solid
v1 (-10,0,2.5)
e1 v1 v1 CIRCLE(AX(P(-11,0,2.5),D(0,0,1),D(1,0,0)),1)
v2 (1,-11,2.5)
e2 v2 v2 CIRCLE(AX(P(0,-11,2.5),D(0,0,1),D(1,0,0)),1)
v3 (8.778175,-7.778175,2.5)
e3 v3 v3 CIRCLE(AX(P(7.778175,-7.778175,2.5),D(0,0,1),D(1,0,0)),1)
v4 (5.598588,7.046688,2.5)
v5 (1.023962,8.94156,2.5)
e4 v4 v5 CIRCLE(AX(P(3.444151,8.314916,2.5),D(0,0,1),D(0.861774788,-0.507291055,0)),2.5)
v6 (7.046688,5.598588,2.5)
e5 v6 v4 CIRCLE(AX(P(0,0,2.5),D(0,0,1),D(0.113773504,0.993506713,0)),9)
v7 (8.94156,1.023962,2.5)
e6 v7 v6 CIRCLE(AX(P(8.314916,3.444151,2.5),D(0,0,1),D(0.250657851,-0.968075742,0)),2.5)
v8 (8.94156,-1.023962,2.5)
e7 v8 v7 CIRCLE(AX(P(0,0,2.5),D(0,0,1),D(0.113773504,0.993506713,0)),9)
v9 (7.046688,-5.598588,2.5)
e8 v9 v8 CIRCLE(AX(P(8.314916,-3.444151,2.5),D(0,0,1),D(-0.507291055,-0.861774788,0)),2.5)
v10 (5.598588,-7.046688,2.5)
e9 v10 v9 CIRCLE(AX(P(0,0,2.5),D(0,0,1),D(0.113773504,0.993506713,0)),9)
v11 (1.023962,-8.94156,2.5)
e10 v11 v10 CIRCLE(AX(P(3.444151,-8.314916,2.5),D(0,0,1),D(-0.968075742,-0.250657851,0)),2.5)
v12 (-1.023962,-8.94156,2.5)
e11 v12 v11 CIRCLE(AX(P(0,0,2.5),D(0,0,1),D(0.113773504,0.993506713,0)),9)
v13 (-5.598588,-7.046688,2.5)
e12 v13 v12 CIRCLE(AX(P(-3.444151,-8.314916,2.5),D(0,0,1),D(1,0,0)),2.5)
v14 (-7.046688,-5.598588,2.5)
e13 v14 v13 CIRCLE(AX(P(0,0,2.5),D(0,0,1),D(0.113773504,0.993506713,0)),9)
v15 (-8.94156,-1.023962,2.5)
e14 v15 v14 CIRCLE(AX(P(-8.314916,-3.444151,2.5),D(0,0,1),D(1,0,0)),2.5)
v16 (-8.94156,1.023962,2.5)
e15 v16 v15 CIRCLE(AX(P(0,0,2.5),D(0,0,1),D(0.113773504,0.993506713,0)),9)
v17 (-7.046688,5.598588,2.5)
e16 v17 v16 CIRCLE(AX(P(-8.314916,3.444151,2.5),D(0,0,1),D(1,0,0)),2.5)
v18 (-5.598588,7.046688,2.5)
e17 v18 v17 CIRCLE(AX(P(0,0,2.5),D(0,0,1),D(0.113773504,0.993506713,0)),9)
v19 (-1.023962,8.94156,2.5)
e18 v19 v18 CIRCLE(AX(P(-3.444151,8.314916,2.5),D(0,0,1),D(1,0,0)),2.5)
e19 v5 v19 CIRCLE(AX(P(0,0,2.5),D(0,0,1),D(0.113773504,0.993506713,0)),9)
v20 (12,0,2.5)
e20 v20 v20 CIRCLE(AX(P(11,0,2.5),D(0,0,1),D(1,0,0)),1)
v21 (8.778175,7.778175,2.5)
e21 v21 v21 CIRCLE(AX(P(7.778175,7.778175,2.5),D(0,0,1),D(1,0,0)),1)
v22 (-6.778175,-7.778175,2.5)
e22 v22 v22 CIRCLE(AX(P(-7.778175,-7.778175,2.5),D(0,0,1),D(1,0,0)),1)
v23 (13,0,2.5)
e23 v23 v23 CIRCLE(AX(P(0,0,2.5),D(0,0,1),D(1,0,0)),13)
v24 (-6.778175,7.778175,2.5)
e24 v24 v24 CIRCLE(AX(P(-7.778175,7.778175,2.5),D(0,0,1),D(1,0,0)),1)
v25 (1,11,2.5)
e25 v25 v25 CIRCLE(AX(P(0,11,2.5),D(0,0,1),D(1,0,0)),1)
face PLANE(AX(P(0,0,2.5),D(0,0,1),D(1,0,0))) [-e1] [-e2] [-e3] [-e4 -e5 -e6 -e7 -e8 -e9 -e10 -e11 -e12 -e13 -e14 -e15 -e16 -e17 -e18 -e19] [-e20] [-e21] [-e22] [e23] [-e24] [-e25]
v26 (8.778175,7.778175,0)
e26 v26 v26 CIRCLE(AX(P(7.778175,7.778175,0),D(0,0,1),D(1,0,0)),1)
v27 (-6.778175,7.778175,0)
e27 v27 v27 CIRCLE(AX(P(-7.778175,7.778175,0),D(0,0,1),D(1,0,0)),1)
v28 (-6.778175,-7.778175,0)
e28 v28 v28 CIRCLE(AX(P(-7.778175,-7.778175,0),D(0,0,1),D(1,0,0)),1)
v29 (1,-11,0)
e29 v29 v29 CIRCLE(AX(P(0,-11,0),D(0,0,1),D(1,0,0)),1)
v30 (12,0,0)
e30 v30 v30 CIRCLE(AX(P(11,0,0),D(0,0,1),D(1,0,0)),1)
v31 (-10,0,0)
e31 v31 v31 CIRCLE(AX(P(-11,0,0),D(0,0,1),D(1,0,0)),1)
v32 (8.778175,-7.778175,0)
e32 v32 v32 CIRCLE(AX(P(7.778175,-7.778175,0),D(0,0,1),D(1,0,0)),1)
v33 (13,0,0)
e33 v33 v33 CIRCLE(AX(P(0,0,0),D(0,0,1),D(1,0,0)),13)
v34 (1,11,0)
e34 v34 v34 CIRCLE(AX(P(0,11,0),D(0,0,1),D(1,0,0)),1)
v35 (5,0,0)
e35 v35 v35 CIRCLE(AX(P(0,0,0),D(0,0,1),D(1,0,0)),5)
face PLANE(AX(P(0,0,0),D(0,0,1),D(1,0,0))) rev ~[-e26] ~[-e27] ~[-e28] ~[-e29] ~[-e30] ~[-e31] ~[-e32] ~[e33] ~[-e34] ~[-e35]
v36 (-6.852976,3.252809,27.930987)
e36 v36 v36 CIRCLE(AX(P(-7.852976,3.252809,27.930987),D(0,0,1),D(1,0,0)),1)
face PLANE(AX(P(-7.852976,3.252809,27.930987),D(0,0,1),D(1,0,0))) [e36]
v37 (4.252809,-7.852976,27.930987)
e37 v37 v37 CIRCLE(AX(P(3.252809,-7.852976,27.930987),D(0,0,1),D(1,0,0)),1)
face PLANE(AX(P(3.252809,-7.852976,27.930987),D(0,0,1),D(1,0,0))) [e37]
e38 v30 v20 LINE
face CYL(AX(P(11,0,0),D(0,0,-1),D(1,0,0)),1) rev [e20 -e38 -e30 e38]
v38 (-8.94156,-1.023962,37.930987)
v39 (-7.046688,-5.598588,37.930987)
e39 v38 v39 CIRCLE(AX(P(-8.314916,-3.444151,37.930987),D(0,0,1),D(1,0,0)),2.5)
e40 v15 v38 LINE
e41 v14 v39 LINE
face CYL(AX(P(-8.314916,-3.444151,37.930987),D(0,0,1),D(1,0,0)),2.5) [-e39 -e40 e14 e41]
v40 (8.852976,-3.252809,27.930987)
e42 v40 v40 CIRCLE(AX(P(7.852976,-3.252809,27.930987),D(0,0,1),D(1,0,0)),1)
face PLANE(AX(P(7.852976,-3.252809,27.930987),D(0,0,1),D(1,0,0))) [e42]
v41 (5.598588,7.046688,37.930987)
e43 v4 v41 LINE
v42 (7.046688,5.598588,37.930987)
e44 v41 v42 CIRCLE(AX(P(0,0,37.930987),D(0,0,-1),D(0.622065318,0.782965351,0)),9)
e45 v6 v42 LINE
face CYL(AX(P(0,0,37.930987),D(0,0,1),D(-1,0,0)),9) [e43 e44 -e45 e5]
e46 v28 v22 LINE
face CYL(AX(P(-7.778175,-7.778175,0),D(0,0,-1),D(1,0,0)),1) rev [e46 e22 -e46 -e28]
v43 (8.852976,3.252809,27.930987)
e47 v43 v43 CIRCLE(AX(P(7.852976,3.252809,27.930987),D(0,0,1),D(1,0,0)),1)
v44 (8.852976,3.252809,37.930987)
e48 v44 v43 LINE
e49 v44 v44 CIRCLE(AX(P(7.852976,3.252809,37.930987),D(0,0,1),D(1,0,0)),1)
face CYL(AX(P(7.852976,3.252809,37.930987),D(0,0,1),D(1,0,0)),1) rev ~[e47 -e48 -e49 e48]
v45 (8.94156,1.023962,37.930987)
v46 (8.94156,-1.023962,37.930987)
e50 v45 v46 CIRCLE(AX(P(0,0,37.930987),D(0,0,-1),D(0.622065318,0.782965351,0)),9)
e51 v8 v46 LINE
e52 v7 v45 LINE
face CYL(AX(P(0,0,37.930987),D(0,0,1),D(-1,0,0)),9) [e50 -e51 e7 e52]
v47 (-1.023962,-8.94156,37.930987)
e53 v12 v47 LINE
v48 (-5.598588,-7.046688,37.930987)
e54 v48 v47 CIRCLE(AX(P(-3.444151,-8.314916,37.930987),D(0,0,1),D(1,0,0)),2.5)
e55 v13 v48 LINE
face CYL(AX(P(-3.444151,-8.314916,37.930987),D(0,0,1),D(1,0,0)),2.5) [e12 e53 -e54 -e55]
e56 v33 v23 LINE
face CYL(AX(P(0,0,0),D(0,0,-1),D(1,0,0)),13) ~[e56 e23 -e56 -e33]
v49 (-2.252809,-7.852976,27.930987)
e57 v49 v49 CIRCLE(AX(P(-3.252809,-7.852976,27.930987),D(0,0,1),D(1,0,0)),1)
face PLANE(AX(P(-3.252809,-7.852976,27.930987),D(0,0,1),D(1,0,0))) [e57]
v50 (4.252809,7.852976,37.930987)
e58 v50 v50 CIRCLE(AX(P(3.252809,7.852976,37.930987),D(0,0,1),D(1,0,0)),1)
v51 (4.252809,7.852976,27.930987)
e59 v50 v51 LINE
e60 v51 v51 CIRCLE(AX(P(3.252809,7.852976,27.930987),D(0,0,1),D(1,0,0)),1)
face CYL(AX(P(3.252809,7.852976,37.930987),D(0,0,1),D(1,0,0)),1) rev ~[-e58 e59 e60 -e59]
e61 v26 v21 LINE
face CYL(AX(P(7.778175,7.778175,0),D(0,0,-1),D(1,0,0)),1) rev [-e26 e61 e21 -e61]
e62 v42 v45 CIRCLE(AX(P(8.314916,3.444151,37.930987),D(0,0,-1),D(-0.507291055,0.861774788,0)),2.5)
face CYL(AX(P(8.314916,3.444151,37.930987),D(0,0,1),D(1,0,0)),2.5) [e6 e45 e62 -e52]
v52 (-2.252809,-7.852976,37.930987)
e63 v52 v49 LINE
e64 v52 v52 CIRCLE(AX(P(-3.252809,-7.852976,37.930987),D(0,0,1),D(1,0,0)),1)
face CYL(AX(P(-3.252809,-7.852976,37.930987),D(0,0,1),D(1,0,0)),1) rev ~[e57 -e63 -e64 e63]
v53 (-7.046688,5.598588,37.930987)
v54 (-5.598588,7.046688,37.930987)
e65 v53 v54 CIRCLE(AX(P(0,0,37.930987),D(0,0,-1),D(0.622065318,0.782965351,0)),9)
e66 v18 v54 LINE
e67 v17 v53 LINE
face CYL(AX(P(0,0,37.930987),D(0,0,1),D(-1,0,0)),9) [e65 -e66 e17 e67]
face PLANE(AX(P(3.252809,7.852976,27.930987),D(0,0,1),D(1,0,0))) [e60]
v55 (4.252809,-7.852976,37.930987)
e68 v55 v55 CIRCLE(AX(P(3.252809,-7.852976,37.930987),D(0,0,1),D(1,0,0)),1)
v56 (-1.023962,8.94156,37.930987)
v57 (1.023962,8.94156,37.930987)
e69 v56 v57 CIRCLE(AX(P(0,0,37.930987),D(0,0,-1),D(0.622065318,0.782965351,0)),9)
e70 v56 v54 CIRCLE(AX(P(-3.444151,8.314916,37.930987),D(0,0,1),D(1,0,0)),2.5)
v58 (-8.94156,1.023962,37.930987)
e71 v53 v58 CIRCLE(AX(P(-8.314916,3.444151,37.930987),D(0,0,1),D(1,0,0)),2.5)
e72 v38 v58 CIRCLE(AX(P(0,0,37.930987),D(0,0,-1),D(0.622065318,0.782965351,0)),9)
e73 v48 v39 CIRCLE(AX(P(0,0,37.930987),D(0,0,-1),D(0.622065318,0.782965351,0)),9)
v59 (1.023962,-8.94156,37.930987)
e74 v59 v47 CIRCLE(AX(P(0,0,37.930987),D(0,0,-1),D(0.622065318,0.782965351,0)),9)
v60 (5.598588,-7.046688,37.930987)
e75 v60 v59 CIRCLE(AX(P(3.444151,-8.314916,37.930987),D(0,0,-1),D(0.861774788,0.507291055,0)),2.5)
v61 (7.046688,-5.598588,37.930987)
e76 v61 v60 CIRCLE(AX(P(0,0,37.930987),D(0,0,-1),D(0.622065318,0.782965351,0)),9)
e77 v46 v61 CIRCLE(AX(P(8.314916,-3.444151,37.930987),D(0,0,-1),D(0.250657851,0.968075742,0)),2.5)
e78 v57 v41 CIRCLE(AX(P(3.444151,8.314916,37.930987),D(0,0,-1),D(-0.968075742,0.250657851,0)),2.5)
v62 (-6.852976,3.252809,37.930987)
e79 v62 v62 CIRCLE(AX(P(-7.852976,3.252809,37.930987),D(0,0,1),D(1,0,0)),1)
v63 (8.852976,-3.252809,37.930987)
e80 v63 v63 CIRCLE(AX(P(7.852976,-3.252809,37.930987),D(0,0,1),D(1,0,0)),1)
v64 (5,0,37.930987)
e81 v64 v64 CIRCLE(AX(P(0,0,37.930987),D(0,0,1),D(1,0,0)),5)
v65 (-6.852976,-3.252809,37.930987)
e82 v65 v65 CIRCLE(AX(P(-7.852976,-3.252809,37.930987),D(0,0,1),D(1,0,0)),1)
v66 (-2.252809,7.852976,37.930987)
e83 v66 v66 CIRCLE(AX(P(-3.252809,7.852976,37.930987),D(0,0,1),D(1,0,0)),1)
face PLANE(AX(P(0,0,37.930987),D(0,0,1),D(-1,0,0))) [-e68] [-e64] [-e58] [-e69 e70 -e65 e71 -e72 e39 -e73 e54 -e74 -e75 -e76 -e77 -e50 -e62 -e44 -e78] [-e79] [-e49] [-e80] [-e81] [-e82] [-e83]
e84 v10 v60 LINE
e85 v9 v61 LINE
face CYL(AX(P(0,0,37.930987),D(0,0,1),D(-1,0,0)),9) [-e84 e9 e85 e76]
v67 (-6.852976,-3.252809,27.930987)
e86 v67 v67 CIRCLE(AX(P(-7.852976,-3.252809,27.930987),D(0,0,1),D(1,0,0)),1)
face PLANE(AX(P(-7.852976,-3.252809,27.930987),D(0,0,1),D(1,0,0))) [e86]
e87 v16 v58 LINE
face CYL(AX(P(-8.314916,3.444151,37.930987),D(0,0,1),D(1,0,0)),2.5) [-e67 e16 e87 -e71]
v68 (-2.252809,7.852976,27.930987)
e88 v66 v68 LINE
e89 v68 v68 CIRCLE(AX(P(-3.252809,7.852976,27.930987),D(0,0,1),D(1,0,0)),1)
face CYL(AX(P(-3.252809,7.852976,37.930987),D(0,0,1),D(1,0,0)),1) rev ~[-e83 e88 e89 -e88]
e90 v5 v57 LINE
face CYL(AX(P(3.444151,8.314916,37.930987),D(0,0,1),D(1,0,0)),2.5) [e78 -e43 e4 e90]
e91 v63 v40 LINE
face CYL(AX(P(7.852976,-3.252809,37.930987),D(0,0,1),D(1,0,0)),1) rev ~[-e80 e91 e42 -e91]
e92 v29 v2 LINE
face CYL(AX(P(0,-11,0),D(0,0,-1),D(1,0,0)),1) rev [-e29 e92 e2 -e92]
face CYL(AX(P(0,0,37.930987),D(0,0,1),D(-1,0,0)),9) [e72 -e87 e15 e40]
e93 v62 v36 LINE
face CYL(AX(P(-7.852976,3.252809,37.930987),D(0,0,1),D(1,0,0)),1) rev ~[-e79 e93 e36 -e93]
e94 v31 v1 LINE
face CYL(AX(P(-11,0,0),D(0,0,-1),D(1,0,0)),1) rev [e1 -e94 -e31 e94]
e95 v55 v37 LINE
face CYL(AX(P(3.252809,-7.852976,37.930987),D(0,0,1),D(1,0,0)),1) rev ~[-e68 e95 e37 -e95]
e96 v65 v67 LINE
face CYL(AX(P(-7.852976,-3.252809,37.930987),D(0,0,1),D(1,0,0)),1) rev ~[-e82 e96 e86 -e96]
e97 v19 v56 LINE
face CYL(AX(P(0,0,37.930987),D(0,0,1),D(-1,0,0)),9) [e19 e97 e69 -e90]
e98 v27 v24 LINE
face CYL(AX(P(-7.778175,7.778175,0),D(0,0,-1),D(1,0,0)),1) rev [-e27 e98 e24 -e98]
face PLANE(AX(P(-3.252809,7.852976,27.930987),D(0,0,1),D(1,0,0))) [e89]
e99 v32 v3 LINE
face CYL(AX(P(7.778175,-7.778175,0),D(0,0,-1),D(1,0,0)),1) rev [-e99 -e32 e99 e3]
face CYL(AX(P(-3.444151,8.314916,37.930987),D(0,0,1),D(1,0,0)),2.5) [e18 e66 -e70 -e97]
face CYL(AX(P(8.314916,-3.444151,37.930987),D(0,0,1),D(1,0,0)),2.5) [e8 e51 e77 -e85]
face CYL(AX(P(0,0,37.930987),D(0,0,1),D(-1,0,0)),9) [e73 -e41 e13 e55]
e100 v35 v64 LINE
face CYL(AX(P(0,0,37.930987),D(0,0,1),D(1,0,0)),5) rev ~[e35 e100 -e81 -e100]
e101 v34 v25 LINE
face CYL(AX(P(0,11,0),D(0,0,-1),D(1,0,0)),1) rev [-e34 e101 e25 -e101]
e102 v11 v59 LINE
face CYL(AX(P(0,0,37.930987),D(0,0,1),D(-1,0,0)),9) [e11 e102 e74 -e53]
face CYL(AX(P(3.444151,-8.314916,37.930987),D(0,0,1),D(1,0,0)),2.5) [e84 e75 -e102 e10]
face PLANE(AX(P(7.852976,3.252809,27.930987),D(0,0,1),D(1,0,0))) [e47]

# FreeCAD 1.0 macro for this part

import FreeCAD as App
import Part
import Sketcher

V = App.Vector

doc = App.newDocument("Part")
body = doc.addObject("PartDesign::Body", "Body")

sketch1 = body.newObject("Sketcher::SketchObject", "Sketch")
sketch1.AttachmentSupport = (doc.getObject("XY_Plane"), [""])
sketch1.MapMode = "FlatFace"
sketch1.addGeometry([
    Part.Circle(V(0, 0, 0), V(0, 0, 1), 13),
    Part.Circle(V(-7.8, -7.8, 0), V(0, 0, 1), 1),
    Part.Circle(V(0, -11, 0), V(0, 0, 1), 1),
    Part.Circle(V(7.8, -7.8, 0), V(0, 0, 1), 1),
    Part.Circle(V(-11, 0, 0), V(0, 0, 1), 1),
    Part.Circle(V(-7.8, 7.8, 0), V(0, 0, 1), 1),
    Part.Circle(V(11, 0, 0), V(0, 0, 1), 1),
    Part.Circle(V(0, 11, 0), V(0, 0, 1), 1),
    Part.Circle(V(7.8, 7.8, 0), V(0, 0, 1), 1),
], False)
sketch1.addConstraint([
    Sketcher.Constraint("Coincident", 0, 3, -1, 1),
    Sketcher.Constraint("Equal", 1, 2),
    Sketcher.Constraint("Equal", 2, 3),
    Sketcher.Constraint("Equal", 3, 4),
    Sketcher.Constraint("Equal", 4, 5),
    Sketcher.Constraint("Equal", 5, 6),
    Sketcher.Constraint("Equal", 6, 7),
    Sketcher.Constraint("Equal", 7, 8),
    Sketcher.Constraint("Symmetric", 3, 3, 5, 3, -1, 1),
    Sketcher.Constraint("Symmetric", 4, 3, 6, 3, -1, 1),
    Sketcher.Constraint("Symmetric", 2, 3, 7, 3, -1, 1),
    Sketcher.Constraint("Symmetric", 1, 3, 8, 3, -1, 1),
    Sketcher.Constraint("Symmetric", 1, 3, 3, 3, -2),
    Sketcher.Constraint("PointOnObject", 2, 3, -2),
    Sketcher.Constraint("PointOnObject", 4, 3, -1),
    Sketcher.Constraint("Diameter", 0, 26.0),
    Sketcher.Constraint("Diameter", 1, 2.0),
    Sketcher.Constraint("DistanceY", 2, 3, -1, 1, 11.0),
    Sketcher.Constraint("DistanceX", 4, 3, -1, 1, 11.0),
    Sketcher.Constraint("DistanceX", 1, 3, 3, 3, 15.556349),
    Sketcher.Constraint("DistanceY", 1, 3, 5, 3, 15.556349),
])
pad1 = body.newObject("PartDesign::Pad", "Pad")
pad1.Profile = sketch1
pad1.Length = 2.5

sketch2 = body.newObject("Sketcher::SketchObject", "Sketch001")
sketch2.AttachmentSupport = (doc.getObject("XY_Plane"), [""])
sketch2.MapMode = "FlatFace"
sketch2.AttachmentOffset = App.Placement(V(0, 0, 2.5), App.Rotation())
sketch2.addGeometry(Part.Circle(V(0, 0, 0), V(0, 0, 1), 5), False)
sketch2.addConstraint([
    Sketcher.Constraint("Coincident", 0, 3, -1, 1),
    Sketcher.Constraint("Diameter", 0, 10.0),
])
pocket1 = body.newObject("PartDesign::Pocket", "Pocket")
pocket1.Profile = sketch2
pocket1.Length = 2.5

sketch3 = body.newObject("Sketcher::SketchObject", "Sketch002")
sketch3.AttachmentSupport = (doc.getObject("XY_Plane"), [""])
sketch3.MapMode = "FlatFace"
sketch3.AttachmentOffset = App.Placement(V(0, 0, 37.930987), App.Rotation())
sketch3.addGeometry([
    Part.Circle(V(0, 0, 0), V(0, 0, 1), 9),
    Part.Circle(V(0, 0, 0), V(0, 0, 1), 5),
], False)
sketch3.addConstraint([
    Sketcher.Constraint("Coincident", 0, 3, -1, 1),
    Sketcher.Constraint("Coincident", 1, 3, -1, 1),
    Sketcher.Constraint("Diameter", 0, 18.0),
    Sketcher.Constraint("Diameter", 1, 10.0),
])
pad2 = body.newObject("PartDesign::Pad", "Pad001")
pad2.Profile = sketch3
pad2.Length = 35.430987
pad2.Reversed = True

sketch4 = body.newObject("Sketcher::SketchObject", "Sketch003")
sketch4.AttachmentSupport = (doc.getObject("XY_Plane"), [""])
sketch4.MapMode = "FlatFace"
sketch4.AttachmentOffset = App.Placement(V(0, 0, 37.930987), App.Rotation())
sketch4.addGeometry(Part.Circle(V(3.4, 8.3, 0), V(0, 0, 1), 2.5), False)
sketch4.addConstraint([
    Sketcher.Constraint("Diameter", 0, 5.0),
    Sketcher.Constraint("DistanceX", -1, 1, 0, 3, 3.444151),
    Sketcher.Constraint("DistanceY", -1, 1, 0, 3, 8.314916),
])
pad3 = body.newObject("PartDesign::Pad", "Pad002")
pad3.Profile = sketch4
pad3.Type = "UpToFirst"
pad3.Reversed = True

sketch5 = body.newObject("Sketcher::SketchObject", "Sketch004")
sketch5.AttachmentSupport = (doc.getObject("XY_Plane"), [""])
sketch5.MapMode = "FlatFace"
sketch5.AttachmentOffset = App.Placement(V(0, 0, 37.930987), App.Rotation())
sketch5.addGeometry(Part.Circle(V(8.3, 3.4, 0), V(0, 0, 1), 2.5), False)
sketch5.addConstraint([
    Sketcher.Constraint("Diameter", 0, 5.0),
    Sketcher.Constraint("DistanceY", -1, 1, 0, 3, 3.444151),
    Sketcher.Constraint("DistanceX", -1, 1, 0, 3, 8.314916),
])
pad4 = body.newObject("PartDesign::Pad", "Pad003")
pad4.Profile = sketch5
pad4.Type = "UpToFirst"
pad4.Reversed = True

sketch6 = body.newObject("Sketcher::SketchObject", "Sketch005")
sketch6.AttachmentSupport = (doc.getObject("XY_Plane"), [""])
sketch6.MapMode = "FlatFace"
sketch6.AttachmentOffset = App.Placement(V(0, 0, 37.930987), App.Rotation())
sketch6.addGeometry(Part.Circle(V(8.3, -3.4, 0), V(0, 0, 1), 2.5), False)
sketch6.addConstraint([
    Sketcher.Constraint("Diameter", 0, 5.0),
    Sketcher.Constraint("DistanceY", 0, 3, -1, 1, 3.444151),
    Sketcher.Constraint("DistanceX", -1, 1, 0, 3, 8.314916),
])
pad5 = body.newObject("PartDesign::Pad", "Pad004")
pad5.Profile = sketch6
pad5.Type = "UpToFirst"
pad5.Reversed = True

sketch7 = body.newObject("Sketcher::SketchObject", "Sketch006")
sketch7.AttachmentSupport = (doc.getObject("XY_Plane"), [""])
sketch7.MapMode = "FlatFace"
sketch7.AttachmentOffset = App.Placement(V(0, 0, 37.930987), App.Rotation())
sketch7.addGeometry(Part.Circle(V(3.4, -8.3, 0), V(0, 0, 1), 2.5), False)
sketch7.addConstraint([
    Sketcher.Constraint("Diameter", 0, 5.0),
    Sketcher.Constraint("DistanceX", -1, 1, 0, 3, 3.444151),
    Sketcher.Constraint("DistanceY", 0, 3, -1, 1, 8.314916),
])
pad6 = body.newObject("PartDesign::Pad", "Pad005")
pad6.Profile = sketch7
pad6.Type = "UpToFirst"
pad6.Reversed = True

sketch8 = body.newObject("Sketcher::SketchObject", "Sketch007")
sketch8.AttachmentSupport = (doc.getObject("XY_Plane"), [""])
sketch8.MapMode = "FlatFace"
sketch8.AttachmentOffset = App.Placement(V(0, 0, 37.930987), App.Rotation())
sketch8.addGeometry(Part.Circle(V(-3.4, -8.3, 0), V(0, 0, 1), 2.5), False)
sketch8.addConstraint([
    Sketcher.Constraint("Diameter", 0, 5.0),
    Sketcher.Constraint("DistanceX", 0, 3, -1, 1, 3.444151),
    Sketcher.Constraint("DistanceY", 0, 3, -1, 1, 8.314916),
])
pad7 = body.newObject("PartDesign::Pad", "Pad006")
pad7.Profile = sketch8
pad7.Type = "UpToFirst"
pad7.Reversed = True

sketch9 = body.newObject("Sketcher::SketchObject", "Sketch008")
sketch9.AttachmentSupport = (doc.getObject("XY_Plane"), [""])
sketch9.MapMode = "FlatFace"
sketch9.AttachmentOffset = App.Placement(V(0, 0, 37.930987), App.Rotation())
sketch9.addGeometry(Part.Circle(V(-8.3, -3.4, 0), V(0, 0, 1), 2.5), False)
sketch9.addConstraint([
    Sketcher.Constraint("Diameter", 0, 5.0),
    Sketcher.Constraint("DistanceY", 0, 3, -1, 1, 3.444151),
    Sketcher.Constraint("DistanceX", 0, 3, -1, 1, 8.314916),
])
pad8 = body.newObject("PartDesign::Pad", "Pad007")
pad8.Profile = sketch9
pad8.Type = "UpToFirst"
pad8.Reversed = True

sketch10 = body.newObject("Sketcher::SketchObject", "Sketch009")
sketch10.AttachmentSupport = (doc.getObject("XY_Plane"), [""])
sketch10.MapMode = "FlatFace"
sketch10.AttachmentOffset = App.Placement(V(0, 0, 37.930987), App.Rotation())
sketch10.addGeometry(Part.Circle(V(-8.3, 3.4, 0), V(0, 0, 1), 2.5), False)
sketch10.addConstraint([
    Sketcher.Constraint("Diameter", 0, 5.0),
    Sketcher.Constraint("DistanceY", -1, 1, 0, 3, 3.444151),
    Sketcher.Constraint("DistanceX", 0, 3, -1, 1, 8.314916),
])
pad9 = body.newObject("PartDesign::Pad", "Pad008")
pad9.Profile = sketch10
pad9.Type = "UpToFirst"
pad9.Reversed = True

sketch11 = body.newObject("Sketcher::SketchObject", "Sketch010")
sketch11.AttachmentSupport = (doc.getObject("XY_Plane"), [""])
sketch11.MapMode = "FlatFace"
sketch11.AttachmentOffset = App.Placement(V(0, 0, 37.930987), App.Rotation())
sketch11.addGeometry(Part.Circle(V(-3.4, 8.3, 0), V(0, 0, 1), 2.5), False)
sketch11.addConstraint([
    Sketcher.Constraint("Diameter", 0, 5.0),
    Sketcher.Constraint("DistanceX", 0, 3, -1, 1, 3.444151),
    Sketcher.Constraint("DistanceY", -1, 1, 0, 3, 8.314916),
])
pad10 = body.newObject("PartDesign::Pad", "Pad009")
pad10.Profile = sketch11
pad10.Type = "UpToFirst"
pad10.Reversed = True

sketch12 = body.newObject("Sketcher::SketchObject", "Sketch011")
sketch12.AttachmentSupport = (doc.getObject("XY_Plane"), [""])
sketch12.MapMode = "FlatFace"
sketch12.AttachmentOffset = App.Placement(V(0, 0, 37.930987), App.Rotation())
sketch12.addGeometry([
    Part.Circle(V(-3.3, 7.9, 0), V(0, 0, 1), 1),
    Part.Circle(V(3.3, 7.9, 0), V(0, 0, 1), 1),
    Part.Circle(V(7.9, 3.3, 0), V(0, 0, 1), 1),
    Part.Circle(V(7.9, -3.3, 0), V(0, 0, 1), 1),
    Part.Circle(V(3.3, -7.9, 0), V(0, 0, 1), 1),
    Part.Circle(V(-3.3, -7.9, 0), V(0, 0, 1), 1),
    Part.Circle(V(-7.9, -3.3, 0), V(0, 0, 1), 1),
    Part.Circle(V(-7.9, 3.3, 0), V(0, 0, 1), 1),
], False)
sketch12.addConstraint([
    Sketcher.Constraint("Equal", 0, 1),
    Sketcher.Constraint("Equal", 1, 2),
    Sketcher.Constraint("Equal", 2, 3),
    Sketcher.Constraint("Equal", 3, 4),
    Sketcher.Constraint("Equal", 4, 5),
    Sketcher.Constraint("Equal", 5, 6),
    Sketcher.Constraint("Equal", 6, 7),
    Sketcher.Constraint("Symmetric", 0, 3, 4, 3, -1, 1),
    Sketcher.Constraint("Symmetric", 1, 3, 5, 3, -1, 1),
    Sketcher.Constraint("Symmetric", 2, 3, 6, 3, -1, 1),
    Sketcher.Constraint("Symmetric", 3, 3, 7, 3, -1, 1),
    Sketcher.Constraint("Symmetric", 0, 3, 1, 3, -2),
    Sketcher.Constraint("Symmetric", 3, 3, 6, 3, -2),
    Sketcher.Constraint("Diameter", 0, 2.0),
    Sketcher.Constraint("DistanceX", 0, 3, -1, 1, 3.252809),
    Sketcher.Constraint("DistanceY", -1, 1, 2, 3, 3.252809),
    Sketcher.Constraint("DistanceY", -1, 1, 0, 3, 7.852976),
    Sketcher.Constraint("DistanceX", -1, 1, 2, 3, 7.852976),
])
pocket2 = body.newObject("PartDesign::Pocket", "Pocket001")
pocket2.Profile = sketch12
pocket2.Length = 10

doc.recompute()
